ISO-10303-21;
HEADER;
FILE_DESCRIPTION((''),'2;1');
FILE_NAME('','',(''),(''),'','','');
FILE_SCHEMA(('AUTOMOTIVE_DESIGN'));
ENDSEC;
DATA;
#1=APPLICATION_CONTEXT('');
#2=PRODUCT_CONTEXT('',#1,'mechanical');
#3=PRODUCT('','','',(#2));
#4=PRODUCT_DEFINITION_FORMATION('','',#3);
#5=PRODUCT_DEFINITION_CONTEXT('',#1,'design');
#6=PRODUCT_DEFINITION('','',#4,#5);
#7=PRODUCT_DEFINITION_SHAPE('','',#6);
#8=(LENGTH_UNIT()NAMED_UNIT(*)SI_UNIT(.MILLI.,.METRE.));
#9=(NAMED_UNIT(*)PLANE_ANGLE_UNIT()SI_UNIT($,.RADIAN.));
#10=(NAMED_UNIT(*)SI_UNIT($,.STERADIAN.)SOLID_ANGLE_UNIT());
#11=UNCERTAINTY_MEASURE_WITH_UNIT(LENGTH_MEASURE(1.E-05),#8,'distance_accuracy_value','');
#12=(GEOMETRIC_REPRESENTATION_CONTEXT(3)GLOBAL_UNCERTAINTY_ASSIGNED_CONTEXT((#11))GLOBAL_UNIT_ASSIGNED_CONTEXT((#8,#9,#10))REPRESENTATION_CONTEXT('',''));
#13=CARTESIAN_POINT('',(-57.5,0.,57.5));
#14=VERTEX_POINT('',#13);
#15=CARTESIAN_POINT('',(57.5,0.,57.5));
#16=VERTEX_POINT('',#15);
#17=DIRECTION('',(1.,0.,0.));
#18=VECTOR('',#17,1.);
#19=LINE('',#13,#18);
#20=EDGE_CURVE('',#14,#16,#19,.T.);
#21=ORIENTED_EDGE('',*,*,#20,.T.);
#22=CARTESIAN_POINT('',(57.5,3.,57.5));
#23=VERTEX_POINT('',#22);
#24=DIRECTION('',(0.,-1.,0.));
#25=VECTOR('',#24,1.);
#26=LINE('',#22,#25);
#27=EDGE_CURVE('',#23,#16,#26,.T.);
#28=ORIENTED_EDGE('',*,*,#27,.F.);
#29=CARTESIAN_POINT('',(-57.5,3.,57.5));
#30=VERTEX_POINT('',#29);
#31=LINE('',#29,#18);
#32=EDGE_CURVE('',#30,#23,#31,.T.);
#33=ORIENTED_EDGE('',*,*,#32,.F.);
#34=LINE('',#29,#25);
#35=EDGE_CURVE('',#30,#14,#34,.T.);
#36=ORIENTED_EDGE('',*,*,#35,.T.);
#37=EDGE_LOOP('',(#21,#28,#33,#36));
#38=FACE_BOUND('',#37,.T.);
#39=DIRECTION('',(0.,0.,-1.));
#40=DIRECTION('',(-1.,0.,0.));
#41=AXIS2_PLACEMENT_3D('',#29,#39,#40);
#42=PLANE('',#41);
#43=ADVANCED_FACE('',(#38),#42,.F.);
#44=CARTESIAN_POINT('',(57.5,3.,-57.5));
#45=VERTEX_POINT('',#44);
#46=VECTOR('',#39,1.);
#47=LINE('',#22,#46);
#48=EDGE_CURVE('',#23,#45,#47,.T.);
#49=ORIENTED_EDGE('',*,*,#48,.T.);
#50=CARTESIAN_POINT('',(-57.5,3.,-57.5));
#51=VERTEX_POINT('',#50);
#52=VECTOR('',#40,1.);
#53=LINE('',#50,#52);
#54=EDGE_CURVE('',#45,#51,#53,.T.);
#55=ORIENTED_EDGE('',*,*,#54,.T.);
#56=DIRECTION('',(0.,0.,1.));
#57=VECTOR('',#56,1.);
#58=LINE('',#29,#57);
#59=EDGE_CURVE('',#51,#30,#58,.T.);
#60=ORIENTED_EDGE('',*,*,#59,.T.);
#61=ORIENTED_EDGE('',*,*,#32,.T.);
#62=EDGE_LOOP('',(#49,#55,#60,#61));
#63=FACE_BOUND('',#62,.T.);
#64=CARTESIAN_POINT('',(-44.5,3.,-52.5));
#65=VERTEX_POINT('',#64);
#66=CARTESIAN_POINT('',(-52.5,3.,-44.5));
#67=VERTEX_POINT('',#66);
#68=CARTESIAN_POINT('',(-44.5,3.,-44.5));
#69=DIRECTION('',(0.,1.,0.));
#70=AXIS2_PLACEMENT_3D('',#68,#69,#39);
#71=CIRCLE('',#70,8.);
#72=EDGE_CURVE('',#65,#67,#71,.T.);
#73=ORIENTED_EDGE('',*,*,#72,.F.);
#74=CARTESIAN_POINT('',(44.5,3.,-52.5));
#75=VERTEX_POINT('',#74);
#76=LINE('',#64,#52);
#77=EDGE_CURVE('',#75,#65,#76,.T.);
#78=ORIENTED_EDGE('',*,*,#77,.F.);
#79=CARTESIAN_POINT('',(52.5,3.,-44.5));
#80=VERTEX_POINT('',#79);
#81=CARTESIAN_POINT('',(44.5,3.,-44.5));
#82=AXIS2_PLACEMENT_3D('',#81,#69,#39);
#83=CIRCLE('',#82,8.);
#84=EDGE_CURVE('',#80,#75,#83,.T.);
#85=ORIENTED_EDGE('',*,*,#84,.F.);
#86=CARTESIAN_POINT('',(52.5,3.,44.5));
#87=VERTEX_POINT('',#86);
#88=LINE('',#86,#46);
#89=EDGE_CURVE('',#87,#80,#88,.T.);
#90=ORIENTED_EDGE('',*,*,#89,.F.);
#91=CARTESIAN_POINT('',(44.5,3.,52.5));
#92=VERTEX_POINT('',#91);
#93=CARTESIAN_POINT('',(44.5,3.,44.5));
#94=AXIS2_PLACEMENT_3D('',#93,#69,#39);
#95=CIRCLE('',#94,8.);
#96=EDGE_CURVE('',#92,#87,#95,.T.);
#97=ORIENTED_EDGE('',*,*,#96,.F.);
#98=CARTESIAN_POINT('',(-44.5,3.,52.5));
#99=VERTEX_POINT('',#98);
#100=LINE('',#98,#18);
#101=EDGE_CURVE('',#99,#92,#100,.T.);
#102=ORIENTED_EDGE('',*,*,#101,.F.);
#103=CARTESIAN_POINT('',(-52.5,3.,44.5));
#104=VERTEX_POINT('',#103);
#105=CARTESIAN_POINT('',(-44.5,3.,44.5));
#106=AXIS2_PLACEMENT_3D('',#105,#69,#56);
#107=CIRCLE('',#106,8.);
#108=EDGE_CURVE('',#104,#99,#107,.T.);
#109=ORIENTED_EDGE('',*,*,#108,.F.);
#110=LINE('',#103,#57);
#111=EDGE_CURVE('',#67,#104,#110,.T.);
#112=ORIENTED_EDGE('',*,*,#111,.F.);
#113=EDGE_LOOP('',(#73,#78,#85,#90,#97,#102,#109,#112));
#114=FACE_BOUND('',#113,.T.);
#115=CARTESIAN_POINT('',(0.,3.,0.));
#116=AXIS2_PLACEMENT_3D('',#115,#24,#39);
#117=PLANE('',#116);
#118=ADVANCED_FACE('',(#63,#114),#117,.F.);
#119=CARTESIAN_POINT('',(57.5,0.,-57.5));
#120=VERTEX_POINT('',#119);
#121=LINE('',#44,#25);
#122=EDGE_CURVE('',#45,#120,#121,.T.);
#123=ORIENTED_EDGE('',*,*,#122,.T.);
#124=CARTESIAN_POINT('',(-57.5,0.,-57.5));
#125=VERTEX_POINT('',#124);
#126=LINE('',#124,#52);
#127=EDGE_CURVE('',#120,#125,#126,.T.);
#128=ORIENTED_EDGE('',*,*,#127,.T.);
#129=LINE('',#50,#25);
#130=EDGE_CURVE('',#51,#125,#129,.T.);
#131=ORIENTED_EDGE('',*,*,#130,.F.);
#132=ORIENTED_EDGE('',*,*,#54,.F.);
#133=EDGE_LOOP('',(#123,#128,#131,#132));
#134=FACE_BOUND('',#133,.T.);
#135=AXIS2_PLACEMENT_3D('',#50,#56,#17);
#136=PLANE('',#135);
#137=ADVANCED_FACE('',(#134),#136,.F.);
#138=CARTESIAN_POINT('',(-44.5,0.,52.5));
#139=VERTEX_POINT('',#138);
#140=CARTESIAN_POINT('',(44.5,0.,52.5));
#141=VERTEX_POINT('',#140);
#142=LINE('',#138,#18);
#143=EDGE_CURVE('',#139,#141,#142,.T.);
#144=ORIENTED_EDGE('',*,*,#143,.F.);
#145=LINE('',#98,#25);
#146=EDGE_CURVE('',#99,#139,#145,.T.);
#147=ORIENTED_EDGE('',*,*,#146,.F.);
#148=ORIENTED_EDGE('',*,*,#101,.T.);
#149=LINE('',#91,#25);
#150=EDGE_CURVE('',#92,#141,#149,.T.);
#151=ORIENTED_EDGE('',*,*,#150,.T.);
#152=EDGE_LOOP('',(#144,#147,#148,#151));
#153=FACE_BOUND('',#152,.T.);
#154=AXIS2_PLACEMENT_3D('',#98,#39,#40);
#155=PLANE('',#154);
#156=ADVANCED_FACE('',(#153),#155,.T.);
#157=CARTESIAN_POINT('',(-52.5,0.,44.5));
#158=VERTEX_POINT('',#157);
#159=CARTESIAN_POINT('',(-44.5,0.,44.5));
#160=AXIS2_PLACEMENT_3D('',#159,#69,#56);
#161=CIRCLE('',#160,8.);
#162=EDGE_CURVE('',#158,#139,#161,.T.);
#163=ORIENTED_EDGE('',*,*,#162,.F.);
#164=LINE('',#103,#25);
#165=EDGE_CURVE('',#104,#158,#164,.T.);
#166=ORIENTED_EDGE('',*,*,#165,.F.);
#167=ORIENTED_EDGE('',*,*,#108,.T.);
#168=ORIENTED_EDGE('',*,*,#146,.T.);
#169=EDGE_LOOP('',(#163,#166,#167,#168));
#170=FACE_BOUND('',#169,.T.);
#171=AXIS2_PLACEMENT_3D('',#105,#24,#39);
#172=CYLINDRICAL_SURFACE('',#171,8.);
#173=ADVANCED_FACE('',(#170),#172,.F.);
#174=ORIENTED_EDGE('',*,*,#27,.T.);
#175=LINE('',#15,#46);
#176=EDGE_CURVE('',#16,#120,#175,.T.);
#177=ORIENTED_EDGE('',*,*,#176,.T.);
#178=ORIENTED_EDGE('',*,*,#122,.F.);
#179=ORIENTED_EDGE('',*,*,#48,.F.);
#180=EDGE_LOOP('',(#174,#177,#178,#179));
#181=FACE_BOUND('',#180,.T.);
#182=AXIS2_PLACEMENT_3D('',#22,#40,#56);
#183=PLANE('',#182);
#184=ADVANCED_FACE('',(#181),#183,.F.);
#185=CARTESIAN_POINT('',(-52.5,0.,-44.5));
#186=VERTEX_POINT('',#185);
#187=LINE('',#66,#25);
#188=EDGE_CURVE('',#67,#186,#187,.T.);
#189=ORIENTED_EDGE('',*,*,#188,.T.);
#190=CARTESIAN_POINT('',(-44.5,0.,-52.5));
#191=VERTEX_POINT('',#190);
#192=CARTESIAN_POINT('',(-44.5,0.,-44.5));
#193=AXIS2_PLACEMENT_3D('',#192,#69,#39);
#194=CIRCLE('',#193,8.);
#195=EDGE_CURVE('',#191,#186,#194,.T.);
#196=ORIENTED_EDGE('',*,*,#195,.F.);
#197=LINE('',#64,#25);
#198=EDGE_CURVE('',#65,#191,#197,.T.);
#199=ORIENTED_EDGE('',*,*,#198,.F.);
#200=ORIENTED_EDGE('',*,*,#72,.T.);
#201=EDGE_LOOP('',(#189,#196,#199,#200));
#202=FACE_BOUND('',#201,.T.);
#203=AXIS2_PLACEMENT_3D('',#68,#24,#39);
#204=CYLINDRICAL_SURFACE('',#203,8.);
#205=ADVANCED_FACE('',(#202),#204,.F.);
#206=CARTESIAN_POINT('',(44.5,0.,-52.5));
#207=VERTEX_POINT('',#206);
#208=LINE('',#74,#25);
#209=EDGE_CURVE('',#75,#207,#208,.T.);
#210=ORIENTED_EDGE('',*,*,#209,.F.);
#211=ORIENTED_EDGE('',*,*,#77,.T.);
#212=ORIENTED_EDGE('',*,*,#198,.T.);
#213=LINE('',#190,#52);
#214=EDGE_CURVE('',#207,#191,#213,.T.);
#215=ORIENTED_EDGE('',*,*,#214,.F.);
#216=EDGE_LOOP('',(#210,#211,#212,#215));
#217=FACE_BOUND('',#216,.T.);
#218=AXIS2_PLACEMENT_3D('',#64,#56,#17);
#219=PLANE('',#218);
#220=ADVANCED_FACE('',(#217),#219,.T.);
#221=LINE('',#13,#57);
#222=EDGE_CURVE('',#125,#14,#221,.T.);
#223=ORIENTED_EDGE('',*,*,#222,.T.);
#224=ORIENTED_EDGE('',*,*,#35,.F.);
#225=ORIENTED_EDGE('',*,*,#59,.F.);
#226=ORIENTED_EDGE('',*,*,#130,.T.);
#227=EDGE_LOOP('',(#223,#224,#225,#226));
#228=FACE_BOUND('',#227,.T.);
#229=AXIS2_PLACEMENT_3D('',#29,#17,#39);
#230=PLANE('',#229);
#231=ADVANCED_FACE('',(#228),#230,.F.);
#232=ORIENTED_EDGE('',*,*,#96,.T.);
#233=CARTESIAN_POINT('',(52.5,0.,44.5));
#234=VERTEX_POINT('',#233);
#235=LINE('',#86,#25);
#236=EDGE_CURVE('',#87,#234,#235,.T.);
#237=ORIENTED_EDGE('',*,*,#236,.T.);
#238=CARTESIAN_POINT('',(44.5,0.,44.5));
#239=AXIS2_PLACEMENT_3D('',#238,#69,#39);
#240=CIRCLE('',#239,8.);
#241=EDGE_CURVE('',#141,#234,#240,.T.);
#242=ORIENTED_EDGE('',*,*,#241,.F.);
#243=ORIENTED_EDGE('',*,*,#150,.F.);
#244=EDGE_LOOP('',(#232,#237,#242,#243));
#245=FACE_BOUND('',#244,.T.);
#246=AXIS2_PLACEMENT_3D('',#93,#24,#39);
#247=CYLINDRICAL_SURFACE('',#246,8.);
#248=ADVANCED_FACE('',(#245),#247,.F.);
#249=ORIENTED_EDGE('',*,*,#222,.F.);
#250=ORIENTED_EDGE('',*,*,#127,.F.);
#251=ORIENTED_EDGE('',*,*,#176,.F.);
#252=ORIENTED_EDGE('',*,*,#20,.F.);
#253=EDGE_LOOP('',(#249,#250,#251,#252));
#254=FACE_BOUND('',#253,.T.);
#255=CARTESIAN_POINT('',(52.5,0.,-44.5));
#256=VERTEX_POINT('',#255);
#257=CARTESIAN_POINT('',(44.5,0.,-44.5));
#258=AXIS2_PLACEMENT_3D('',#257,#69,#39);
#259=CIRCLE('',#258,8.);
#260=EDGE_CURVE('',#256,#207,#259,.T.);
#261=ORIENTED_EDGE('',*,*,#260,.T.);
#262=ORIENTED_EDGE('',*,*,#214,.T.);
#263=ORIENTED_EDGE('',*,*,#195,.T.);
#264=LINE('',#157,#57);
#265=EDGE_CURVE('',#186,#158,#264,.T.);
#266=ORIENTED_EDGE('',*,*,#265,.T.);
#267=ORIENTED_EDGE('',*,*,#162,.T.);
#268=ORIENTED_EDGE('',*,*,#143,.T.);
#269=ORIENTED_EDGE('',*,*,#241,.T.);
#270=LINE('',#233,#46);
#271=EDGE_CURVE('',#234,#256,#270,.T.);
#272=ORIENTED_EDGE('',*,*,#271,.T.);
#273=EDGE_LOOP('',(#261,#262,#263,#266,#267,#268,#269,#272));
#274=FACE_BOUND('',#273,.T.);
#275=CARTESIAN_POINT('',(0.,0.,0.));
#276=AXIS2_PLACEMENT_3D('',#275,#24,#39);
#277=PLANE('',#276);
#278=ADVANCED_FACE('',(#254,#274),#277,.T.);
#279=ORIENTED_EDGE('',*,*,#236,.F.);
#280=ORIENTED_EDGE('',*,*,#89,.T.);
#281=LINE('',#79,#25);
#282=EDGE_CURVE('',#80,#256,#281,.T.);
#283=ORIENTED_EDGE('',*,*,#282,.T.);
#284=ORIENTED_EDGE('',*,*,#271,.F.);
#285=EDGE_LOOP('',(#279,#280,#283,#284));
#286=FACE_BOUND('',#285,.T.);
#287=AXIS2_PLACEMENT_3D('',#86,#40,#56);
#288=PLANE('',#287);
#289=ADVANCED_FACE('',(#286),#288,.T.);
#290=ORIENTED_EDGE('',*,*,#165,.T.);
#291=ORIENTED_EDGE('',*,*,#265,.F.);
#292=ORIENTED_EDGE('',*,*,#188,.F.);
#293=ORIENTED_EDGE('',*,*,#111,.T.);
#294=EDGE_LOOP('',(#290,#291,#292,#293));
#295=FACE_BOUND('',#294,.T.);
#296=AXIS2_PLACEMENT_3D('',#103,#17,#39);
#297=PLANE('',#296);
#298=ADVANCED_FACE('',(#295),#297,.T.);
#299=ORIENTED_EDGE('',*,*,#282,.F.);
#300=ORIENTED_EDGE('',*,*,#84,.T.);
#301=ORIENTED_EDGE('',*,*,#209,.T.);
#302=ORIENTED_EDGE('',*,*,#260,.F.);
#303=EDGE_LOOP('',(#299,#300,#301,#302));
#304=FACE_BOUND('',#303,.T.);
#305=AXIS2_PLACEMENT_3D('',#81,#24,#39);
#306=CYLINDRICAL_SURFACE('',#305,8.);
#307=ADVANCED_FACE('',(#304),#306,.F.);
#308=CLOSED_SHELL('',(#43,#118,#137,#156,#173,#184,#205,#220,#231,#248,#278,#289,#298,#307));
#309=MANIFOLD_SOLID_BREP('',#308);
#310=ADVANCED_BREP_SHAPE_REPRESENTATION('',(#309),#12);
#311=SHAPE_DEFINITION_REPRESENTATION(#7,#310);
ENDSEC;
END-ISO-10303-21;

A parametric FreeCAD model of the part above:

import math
import FreeCAD as App
import Part
import Sketcher
Q = App.Units.Quantity


def add_polygon(sketch, points):
    """Adds a closed chain of lines whose ends are joined by coincident constraints."""
    first, n = sketch.GeometryCount, len(points)
    for a, b in zip(points, points[1:] + points[:1]):
        sketch.addGeometry(Part.LineSegment(App.Vector(*a, 0), App.Vector(*b, 0)), False)
    for i in range(n):
        sketch.addConstraint(Sketcher.Constraint("Coincident", first + i, 2, first + (i + 1) % n, 1))

doc = App.newDocument("Part")
body = doc.addObject("PartDesign::Body", "Body")

# Sketch on XZ plane
sketch1 = doc.addObject("Sketcher::SketchObject", "Sketch")
body.addObject(sketch1)
sketch1.AttachmentSupport = (doc.XZ_Plane, [""])
sketch1.MapMode = "FlatFace"
add_polygon(sketch1, [(-57.5, -57.5), (-57.5, 57.5), (57.5, 57.5), (57.5, -57.5)])  # lines 0-3
sketch1.addGeometry(Part.LineSegment(App.Vector(44.5, 52.5, 0), App.Vector(-44.5, 52.5, 0)), False)  # 4
sketch1.addGeometry(Part.ArcOfCircle(Part.Circle(App.Vector(-44.5, 44.5, 0), App.Vector(0, 0, 1), 8), math.radians(90), math.radians(180)), False)  # 5
sketch1.addGeometry(Part.LineSegment(App.Vector(-52.5, 44.5, 0), App.Vector(-52.5, -44.5, 0)), False)  # 6
sketch1.addGeometry(Part.ArcOfCircle(Part.Circle(App.Vector(-44.5, -44.5, 0), App.Vector(0, 0, 1), 8), math.radians(-180), math.radians(-90)), False)  # 7
sketch1.addGeometry(Part.LineSegment(App.Vector(-44.5, -52.5, 0), App.Vector(44.5, -52.5, 0)), False)  # 8
sketch1.addGeometry(Part.ArcOfCircle(Part.Circle(App.Vector(44.5, -44.5, 0), App.Vector(0, 0, 1), 8), math.radians(-90), math.radians(0)), False)  # 9
sketch1.addGeometry(Part.LineSegment(App.Vector(52.5, -44.5, 0), App.Vector(52.5, 44.5, 0)), False)  # 10
sketch1.addGeometry(Part.ArcOfCircle(Part.Circle(App.Vector(44.5, 44.5, 0), App.Vector(0, 0, 1), 8), math.radians(0), math.radians(90)), False)  # 11
sketch1.addConstraint(Sketcher.Constraint("Tangent", 4, 2, 5, 1))
sketch1.addConstraint(Sketcher.Constraint("Tangent", 5, 2, 6, 1))
sketch1.addConstraint(Sketcher.Constraint("Tangent", 6, 2, 7, 1))
sketch1.addConstraint(Sketcher.Constraint("Tangent", 7, 2, 8, 1))
sketch1.addConstraint(Sketcher.Constraint("Tangent", 8, 2, 9, 1))
sketch1.addConstraint(Sketcher.Constraint("Tangent", 9, 2, 10, 1))
sketch1.addConstraint(Sketcher.Constraint("Tangent", 10, 2, 11, 1))
sketch1.addConstraint(Sketcher.Constraint("Tangent", 11, 2, 4, 1))
sketch1.addConstraint(Sketcher.Constraint("Vertical", 0))
sketch1.addConstraint(Sketcher.Constraint("Horizontal", 1))
sketch1.addConstraint(Sketcher.Constraint("Vertical", 2))
sketch1.addConstraint(Sketcher.Constraint("Horizontal", 3))
sketch1.addConstraint(Sketcher.Constraint("Horizontal", 4))
sketch1.addConstraint(Sketcher.Constraint("Vertical", 6))
sketch1.addConstraint(Sketcher.Constraint("Horizontal", 8))
sketch1.addConstraint(Sketcher.Constraint("Vertical", 10))
sketch1.addConstraint(Sketcher.Constraint("Equal", 5, 7))
sketch1.addConstraint(Sketcher.Constraint("Equal", 7, 9))
sketch1.addConstraint(Sketcher.Constraint("Equal", 9, 11))
sketch1.addConstraint(Sketcher.Constraint("Symmetric", 5, 3, 9, 3, -1, 1))
sketch1.addConstraint(Sketcher.Constraint("Symmetric", 0, 2, 2, 2, -1, 1))
sketch1.addConstraint(Sketcher.Constraint("Equal", 3, 0))
sketch1.addConstraint(Sketcher.Constraint("Equal", 8, 6))
sketch1.addConstraint(Sketcher.Constraint("Radius", 5, Q("8 mm")))
sketch1.addConstraint(Sketcher.Constraint("DistanceX", 1, 1, 1, 2, Q("115 mm")))
sketch1.addConstraint(Sketcher.Constraint("DistanceX", 4, 2, 4, 1, Q("89 mm")))
pad1 = doc.addObject("PartDesign::Pad", "Pad")
body.addObject(pad1)
pad1.Profile = sketch1
pad1.Length = 3
pad1.Reversed = True

doc.recompute()
